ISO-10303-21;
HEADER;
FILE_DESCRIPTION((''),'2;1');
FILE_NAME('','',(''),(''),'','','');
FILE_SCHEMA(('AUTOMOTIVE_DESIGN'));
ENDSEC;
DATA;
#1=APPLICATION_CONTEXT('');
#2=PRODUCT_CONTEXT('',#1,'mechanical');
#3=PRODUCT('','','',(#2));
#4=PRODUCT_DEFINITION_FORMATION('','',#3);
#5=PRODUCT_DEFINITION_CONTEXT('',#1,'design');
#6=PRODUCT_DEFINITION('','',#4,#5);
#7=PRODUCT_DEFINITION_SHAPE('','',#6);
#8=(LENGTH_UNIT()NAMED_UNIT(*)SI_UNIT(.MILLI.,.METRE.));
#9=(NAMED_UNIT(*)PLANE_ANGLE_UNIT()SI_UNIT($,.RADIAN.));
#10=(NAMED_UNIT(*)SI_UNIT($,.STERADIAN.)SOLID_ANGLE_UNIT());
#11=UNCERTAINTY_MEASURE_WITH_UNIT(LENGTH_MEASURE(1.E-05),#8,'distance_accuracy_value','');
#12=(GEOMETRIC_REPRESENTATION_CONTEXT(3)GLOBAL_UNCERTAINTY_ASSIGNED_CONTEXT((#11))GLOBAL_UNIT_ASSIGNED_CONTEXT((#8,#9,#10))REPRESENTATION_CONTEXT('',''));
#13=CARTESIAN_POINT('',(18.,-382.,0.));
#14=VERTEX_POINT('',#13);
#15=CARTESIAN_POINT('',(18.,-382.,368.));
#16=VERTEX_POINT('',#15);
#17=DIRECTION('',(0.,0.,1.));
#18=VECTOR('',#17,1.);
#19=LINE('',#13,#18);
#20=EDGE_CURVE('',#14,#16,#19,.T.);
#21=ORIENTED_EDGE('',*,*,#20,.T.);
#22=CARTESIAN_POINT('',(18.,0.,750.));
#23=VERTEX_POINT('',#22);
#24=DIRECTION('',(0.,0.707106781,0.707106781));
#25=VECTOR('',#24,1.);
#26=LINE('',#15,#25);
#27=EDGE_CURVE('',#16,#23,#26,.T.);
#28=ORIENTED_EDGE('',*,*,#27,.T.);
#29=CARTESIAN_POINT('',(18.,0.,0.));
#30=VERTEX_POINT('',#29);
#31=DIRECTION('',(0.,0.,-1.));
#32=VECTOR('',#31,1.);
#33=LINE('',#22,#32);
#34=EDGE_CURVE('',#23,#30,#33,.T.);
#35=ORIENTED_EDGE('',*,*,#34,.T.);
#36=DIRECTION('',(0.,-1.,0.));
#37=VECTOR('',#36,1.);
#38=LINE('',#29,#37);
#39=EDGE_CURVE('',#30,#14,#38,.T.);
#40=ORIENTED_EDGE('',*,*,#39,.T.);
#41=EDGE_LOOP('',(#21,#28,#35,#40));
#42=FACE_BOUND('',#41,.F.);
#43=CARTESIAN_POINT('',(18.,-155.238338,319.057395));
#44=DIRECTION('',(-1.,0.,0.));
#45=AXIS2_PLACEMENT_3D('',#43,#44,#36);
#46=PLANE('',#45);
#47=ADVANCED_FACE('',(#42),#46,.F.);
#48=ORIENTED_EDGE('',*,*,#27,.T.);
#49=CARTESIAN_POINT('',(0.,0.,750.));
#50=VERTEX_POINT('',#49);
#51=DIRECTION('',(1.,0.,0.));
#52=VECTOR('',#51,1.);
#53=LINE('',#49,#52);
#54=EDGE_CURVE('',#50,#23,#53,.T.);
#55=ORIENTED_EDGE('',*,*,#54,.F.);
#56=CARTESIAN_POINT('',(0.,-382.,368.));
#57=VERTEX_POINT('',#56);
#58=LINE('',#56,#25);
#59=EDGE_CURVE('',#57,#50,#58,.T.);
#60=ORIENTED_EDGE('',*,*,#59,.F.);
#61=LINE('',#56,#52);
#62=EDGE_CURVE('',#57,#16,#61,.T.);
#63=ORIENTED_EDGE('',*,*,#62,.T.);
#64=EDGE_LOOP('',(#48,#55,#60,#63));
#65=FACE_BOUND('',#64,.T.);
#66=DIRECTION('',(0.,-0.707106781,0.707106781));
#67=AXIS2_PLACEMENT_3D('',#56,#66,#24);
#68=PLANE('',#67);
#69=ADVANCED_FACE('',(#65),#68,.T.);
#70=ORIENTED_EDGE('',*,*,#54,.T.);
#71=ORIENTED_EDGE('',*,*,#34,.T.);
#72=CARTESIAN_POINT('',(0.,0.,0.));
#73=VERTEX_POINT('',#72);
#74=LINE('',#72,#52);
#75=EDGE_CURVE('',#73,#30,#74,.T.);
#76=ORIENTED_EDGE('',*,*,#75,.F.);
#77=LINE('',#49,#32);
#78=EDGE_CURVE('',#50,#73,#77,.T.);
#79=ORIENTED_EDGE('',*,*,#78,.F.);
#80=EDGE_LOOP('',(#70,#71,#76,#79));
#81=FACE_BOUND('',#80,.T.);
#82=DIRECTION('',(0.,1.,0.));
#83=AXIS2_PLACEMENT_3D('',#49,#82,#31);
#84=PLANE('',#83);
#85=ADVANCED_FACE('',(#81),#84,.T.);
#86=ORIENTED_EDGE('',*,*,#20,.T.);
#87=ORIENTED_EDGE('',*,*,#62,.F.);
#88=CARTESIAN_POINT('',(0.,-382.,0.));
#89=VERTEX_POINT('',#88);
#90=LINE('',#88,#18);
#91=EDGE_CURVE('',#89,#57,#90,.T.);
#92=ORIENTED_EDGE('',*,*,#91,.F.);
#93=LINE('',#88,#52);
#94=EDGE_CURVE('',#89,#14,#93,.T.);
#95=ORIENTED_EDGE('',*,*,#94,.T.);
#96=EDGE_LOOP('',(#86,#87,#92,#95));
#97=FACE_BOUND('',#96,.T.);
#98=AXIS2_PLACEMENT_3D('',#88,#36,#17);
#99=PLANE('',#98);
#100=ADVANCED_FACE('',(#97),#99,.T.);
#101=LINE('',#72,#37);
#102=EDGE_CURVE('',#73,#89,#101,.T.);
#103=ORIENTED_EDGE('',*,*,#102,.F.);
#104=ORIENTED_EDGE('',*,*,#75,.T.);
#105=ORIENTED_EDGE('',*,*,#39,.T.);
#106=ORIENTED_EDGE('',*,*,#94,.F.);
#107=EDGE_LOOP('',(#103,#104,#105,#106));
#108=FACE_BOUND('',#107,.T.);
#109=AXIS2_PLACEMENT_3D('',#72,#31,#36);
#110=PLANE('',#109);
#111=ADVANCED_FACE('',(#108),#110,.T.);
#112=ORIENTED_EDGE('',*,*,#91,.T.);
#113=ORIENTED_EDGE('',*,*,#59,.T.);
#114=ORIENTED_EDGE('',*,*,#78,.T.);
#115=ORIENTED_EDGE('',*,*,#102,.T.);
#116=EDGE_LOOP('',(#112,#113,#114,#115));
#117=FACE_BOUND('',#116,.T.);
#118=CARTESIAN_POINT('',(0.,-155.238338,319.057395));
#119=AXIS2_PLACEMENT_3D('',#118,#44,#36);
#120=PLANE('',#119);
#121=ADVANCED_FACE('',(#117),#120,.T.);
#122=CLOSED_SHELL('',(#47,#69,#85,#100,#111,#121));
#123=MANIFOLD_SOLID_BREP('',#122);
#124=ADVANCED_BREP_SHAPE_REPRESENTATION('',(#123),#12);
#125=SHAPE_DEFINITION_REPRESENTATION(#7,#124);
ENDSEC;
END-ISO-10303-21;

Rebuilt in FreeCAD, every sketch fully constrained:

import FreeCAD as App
import Part
import Sketcher


def add_polygon(sketch, points):
    """Adds a closed chain of lines whose ends are joined by coincident constraints."""
    first, n = sketch.GeometryCount, len(points)
    for a, b in zip(points, points[1:] + points[:1]):
        sketch.addGeometry(Part.LineSegment(App.Vector(*a, 0), App.Vector(*b, 0)), False)
    for i in range(n):
        sketch.addConstraint(Sketcher.Constraint("Coincident", first + i, 2, first + (i + 1) % n, 1))

doc = App.newDocument("Part")
body = doc.addObject("PartDesign::Body", "Body")

sketch1 = doc.addObject("Sketcher::SketchObject", "Sketch")
body.addObject(sketch1)
sketch1.AttachmentSupport = (doc.YZ_Plane, [""])
sketch1.MapMode = "FlatFace"
add_polygon(sketch1, [(-382, 0), (0, 0), (0, 750), (-382, 368)])
sketch1.addConstraint([
    Sketcher.Constraint("Horizontal", 0),
    Sketcher.Constraint("Vertical", 1),
    Sketcher.Constraint("Vertical", 3),
    Sketcher.Constraint("Coincident", 0, 2, -1, 1),
    Sketcher.Constraint("DistanceX", 0, 1, 0, 2, 382.0),
    Sketcher.Constraint("DistanceY", 1, 1, 1, 2, 750.0),
    Sketcher.Constraint("DistanceY", 3, 2, 3, 1, 368.0),
])
pad1 = doc.addObject("PartDesign::Pad", "Pad")
body.addObject(pad1)
pad1.Profile = sketch1
pad1.Length = 18

doc.recompute()
